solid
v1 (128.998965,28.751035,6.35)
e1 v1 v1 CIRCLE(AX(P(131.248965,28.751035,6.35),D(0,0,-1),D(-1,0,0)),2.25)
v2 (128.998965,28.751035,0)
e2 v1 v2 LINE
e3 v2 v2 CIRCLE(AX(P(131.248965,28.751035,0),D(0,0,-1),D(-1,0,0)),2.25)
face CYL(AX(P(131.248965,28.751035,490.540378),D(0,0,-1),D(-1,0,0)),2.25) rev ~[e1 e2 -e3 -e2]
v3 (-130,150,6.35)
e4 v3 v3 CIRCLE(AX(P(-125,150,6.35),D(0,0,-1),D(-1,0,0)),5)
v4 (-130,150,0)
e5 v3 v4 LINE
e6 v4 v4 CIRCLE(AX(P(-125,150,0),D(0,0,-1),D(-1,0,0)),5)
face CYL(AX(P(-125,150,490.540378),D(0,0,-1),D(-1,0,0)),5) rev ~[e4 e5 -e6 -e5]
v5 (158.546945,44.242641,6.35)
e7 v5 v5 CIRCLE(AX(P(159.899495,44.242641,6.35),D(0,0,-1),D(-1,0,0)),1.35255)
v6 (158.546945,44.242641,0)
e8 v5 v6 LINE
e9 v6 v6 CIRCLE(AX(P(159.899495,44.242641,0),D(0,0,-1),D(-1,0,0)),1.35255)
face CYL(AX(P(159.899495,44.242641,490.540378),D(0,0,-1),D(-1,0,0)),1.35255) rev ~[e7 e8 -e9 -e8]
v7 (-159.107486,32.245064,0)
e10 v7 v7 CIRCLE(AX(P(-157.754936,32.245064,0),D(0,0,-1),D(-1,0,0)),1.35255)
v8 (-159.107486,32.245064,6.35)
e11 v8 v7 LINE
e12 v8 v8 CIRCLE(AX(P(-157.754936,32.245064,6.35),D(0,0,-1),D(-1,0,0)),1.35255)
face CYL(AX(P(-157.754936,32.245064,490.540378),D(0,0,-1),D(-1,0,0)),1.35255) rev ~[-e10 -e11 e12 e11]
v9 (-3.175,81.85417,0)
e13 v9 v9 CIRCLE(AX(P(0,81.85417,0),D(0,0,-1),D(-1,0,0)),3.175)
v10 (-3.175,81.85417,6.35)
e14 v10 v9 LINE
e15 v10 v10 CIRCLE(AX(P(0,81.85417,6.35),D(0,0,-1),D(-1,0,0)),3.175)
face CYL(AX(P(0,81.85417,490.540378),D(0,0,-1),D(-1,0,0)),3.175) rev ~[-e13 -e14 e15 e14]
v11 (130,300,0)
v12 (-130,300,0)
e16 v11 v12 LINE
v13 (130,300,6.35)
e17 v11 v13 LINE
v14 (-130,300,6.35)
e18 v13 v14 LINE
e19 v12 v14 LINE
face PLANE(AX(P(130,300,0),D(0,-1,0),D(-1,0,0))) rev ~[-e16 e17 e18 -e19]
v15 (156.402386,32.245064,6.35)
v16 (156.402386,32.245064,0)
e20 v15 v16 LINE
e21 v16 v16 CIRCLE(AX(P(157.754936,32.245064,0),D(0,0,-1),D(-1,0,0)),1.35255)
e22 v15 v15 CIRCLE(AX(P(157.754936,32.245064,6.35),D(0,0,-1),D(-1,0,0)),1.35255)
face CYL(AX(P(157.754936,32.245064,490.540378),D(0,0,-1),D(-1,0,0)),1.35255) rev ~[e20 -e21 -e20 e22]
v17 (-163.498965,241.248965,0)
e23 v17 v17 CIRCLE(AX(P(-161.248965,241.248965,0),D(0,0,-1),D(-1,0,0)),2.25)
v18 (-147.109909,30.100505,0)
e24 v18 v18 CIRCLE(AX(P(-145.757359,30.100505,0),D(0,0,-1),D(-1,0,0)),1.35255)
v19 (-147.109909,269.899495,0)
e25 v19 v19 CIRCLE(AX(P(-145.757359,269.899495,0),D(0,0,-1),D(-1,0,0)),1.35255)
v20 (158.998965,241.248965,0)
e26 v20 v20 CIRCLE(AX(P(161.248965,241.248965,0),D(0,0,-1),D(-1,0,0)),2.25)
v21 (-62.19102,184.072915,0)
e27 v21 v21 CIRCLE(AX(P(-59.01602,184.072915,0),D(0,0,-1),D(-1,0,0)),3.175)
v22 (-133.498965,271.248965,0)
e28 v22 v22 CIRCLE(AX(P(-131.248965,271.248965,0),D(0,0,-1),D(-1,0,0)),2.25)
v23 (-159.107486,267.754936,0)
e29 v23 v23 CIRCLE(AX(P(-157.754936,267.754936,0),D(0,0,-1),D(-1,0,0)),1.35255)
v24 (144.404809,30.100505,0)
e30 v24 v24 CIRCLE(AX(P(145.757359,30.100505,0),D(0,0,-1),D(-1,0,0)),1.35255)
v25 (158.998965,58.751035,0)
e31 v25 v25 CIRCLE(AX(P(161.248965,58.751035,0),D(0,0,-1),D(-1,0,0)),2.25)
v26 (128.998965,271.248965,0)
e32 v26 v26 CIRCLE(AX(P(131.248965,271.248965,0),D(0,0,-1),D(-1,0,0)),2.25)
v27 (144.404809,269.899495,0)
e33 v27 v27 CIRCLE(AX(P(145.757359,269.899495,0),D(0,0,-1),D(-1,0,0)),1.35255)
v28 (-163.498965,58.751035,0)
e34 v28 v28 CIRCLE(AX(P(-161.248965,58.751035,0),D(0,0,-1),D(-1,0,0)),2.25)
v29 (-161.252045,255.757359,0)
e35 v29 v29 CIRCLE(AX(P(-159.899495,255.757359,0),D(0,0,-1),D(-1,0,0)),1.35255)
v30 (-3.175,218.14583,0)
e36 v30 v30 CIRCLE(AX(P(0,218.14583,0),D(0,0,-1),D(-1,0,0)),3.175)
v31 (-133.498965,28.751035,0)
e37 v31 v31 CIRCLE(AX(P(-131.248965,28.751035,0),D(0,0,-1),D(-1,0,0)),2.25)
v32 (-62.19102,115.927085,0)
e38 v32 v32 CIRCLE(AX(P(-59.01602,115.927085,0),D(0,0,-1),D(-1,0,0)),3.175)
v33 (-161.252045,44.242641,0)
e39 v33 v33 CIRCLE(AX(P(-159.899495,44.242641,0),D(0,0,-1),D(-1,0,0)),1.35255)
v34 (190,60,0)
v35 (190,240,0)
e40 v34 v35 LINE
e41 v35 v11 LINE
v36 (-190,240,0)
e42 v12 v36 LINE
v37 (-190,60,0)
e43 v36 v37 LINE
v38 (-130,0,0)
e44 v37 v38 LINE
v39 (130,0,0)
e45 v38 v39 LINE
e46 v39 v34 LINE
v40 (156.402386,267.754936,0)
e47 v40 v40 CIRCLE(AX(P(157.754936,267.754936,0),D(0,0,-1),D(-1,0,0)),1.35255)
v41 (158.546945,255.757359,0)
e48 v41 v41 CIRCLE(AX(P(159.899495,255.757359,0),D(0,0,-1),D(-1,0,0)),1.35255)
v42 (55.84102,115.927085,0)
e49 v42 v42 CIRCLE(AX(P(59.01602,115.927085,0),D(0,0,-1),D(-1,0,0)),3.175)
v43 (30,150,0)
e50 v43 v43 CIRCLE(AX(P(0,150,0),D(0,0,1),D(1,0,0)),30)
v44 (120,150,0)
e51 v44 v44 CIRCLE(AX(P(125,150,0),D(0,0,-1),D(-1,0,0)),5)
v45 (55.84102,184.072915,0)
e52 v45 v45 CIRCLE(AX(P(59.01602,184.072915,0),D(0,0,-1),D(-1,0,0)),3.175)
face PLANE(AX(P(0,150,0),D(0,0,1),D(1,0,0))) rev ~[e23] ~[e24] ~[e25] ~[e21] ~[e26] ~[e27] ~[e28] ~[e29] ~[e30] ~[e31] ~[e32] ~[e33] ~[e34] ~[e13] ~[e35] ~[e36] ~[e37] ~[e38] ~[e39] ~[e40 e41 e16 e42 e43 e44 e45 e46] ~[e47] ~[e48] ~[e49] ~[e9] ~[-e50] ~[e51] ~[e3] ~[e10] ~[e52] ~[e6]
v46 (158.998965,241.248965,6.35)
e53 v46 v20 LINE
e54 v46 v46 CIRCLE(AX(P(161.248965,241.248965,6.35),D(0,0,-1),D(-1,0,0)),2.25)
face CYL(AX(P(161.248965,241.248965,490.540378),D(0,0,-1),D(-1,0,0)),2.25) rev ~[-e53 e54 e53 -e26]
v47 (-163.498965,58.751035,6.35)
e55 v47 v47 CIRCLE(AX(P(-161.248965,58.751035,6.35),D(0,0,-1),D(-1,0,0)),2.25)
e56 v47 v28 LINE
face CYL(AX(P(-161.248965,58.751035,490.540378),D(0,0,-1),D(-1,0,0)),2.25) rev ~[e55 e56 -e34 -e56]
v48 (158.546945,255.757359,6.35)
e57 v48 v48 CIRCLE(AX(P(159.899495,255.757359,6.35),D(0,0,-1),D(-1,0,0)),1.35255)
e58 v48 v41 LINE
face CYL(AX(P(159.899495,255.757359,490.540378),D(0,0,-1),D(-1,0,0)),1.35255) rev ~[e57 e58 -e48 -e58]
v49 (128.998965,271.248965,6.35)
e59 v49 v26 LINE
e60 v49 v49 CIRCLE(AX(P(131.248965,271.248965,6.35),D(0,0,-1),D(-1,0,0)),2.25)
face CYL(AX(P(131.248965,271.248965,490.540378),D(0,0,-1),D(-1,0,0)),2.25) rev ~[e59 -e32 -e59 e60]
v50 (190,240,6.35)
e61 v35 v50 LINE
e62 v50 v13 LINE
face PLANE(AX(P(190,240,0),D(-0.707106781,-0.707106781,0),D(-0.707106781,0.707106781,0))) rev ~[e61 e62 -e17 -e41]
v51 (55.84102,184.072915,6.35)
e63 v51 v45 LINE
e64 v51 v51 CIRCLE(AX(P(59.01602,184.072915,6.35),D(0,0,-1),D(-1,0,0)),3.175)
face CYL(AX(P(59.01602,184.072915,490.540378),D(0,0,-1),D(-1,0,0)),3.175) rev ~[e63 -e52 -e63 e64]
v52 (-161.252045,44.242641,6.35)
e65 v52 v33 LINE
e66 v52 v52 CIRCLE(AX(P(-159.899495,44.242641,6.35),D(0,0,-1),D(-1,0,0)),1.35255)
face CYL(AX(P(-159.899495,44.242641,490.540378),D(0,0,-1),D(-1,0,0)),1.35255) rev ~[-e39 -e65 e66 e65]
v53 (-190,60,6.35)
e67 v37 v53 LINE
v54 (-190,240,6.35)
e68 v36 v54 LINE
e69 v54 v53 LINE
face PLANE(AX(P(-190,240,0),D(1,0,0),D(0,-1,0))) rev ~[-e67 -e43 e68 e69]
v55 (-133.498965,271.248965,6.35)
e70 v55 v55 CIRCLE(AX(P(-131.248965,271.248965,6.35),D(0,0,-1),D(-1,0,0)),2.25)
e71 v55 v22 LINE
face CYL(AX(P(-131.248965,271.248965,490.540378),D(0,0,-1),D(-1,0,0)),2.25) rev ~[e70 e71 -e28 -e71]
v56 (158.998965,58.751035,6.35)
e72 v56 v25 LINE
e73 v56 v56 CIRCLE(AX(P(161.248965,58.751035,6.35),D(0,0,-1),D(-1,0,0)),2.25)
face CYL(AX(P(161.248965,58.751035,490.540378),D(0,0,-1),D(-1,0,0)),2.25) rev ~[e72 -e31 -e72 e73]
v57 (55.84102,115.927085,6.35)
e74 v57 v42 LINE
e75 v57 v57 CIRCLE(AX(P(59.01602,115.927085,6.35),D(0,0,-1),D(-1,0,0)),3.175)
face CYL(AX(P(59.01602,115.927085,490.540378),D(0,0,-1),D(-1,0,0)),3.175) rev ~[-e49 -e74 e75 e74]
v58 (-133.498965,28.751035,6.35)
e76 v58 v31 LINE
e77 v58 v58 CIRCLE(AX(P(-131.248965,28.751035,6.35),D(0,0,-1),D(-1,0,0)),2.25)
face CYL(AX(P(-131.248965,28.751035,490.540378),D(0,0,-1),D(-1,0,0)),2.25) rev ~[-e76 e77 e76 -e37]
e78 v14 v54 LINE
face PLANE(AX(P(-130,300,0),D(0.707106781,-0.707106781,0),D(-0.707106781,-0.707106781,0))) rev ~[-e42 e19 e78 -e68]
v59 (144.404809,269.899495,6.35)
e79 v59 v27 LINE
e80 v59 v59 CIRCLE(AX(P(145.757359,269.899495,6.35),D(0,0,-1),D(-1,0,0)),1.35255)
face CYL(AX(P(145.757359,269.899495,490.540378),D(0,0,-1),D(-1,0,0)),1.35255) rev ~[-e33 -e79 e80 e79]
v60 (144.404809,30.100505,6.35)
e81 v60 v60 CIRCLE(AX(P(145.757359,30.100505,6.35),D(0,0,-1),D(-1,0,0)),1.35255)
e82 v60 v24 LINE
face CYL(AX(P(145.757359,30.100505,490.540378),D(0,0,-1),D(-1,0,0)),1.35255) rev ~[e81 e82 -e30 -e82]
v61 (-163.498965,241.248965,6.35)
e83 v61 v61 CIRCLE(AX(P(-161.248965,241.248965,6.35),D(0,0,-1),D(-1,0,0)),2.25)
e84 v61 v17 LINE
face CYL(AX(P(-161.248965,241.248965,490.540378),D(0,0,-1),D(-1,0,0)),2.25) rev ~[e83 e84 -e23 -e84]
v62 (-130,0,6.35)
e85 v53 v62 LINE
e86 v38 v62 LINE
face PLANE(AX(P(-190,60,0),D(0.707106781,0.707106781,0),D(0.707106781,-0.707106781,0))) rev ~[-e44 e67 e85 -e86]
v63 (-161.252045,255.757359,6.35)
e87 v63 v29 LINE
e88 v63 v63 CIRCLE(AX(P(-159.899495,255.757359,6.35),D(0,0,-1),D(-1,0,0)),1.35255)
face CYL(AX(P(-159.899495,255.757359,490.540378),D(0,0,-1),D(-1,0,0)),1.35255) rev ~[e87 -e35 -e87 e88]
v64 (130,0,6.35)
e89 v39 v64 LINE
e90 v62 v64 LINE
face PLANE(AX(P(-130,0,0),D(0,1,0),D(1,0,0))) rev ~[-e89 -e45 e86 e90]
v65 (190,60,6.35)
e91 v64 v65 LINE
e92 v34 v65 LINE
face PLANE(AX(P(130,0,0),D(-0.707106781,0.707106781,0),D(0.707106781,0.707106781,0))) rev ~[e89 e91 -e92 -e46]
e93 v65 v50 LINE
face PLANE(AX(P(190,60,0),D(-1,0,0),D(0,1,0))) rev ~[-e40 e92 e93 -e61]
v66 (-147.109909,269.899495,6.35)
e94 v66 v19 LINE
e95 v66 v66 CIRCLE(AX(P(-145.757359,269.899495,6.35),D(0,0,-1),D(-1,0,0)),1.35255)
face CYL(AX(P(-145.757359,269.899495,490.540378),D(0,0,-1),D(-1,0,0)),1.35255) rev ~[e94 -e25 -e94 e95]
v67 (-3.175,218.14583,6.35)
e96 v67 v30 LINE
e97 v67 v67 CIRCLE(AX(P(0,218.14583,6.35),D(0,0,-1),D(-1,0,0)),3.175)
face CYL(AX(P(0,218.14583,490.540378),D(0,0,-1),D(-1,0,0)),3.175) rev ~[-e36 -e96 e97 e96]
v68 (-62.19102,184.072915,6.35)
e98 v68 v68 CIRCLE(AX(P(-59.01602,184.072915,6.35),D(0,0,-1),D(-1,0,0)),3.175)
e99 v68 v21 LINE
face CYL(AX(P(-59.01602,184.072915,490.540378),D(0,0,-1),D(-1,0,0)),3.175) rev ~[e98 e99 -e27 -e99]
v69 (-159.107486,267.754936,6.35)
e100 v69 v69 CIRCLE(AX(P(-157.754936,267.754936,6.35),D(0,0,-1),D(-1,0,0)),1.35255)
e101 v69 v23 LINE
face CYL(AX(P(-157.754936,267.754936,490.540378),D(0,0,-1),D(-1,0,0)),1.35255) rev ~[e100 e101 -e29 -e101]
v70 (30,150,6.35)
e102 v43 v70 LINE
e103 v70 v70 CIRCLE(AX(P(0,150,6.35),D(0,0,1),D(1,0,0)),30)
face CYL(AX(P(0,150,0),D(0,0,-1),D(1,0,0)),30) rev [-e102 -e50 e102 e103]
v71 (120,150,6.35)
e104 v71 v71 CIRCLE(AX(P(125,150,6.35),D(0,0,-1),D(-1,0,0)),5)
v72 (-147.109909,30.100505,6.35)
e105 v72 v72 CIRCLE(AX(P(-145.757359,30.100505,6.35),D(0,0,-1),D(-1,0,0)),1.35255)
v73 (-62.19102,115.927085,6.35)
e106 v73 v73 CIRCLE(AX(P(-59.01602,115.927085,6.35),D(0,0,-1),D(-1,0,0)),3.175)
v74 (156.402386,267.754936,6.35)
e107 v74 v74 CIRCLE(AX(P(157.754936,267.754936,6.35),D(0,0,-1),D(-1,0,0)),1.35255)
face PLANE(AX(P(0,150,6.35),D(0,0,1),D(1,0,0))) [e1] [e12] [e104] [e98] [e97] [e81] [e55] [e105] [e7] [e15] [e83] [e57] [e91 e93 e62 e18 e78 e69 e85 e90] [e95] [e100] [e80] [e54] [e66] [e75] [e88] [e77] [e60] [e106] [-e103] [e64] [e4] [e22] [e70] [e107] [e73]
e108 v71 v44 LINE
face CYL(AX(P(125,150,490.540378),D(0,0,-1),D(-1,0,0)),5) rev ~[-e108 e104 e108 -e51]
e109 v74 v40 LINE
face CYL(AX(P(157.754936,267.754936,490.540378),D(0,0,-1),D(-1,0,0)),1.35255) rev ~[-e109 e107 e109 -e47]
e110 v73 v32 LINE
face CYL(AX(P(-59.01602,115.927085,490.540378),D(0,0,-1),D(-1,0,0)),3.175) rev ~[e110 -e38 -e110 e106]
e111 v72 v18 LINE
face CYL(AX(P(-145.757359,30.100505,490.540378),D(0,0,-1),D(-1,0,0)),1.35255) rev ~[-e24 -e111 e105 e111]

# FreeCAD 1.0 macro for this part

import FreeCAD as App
import Part
import Sketcher
from FreeCAD import Vector


def add_polygon(sketch, points):
    """Adds a closed chain of lines whose ends are joined by coincident constraints."""
    first, n = sketch.GeometryCount, len(points)
    for a, b in zip(points, points[1:] + points[:1]):
        sketch.addGeometry(Part.LineSegment(App.Vector(*a, 0), App.Vector(*b, 0)), False)
    for i in range(n):
        sketch.addConstraint(Sketcher.Constraint("Coincident", first + i, 2, first + (i + 1) % n, 1))

doc = App.newDocument("Part")
body = doc.addObject("PartDesign::Body", "Body")

sketch1 = doc.addObject("Sketcher::SketchObject", "Sketch")
body.addObject(sketch1)
sketch1.AttachmentSupport = (doc.XY_Plane, [""])
sketch1.MapMode = "FlatFace"
add_polygon(sketch1, [(-190, 60), (-130, 0), (130, 0), (190, 60), (190, 240), (130, 300), (-130, 300), (-190, 240)])
sketch1.addGeometry(Part.Circle(Vector(0, 150, 0), Vector(0, 0, 1), 30), False)
sketch1.addConstraint(Sketcher.Constraint("Horizontal", 1))
sketch1.addConstraint(Sketcher.Constraint("Vertical", 3))
sketch1.addConstraint(Sketcher.Constraint("Horizontal", 5))
sketch1.addConstraint(Sketcher.Constraint("Vertical", 7))
sketch1.addConstraint(Sketcher.Constraint("Symmetric", 0, 2, 1, 2, -1, 1))
sketch1.addConstraint(Sketcher.Constraint("Symmetric", 3, 2, 6, 2, -2))
sketch1.addConstraint(Sketcher.Constraint("PointOnObject", 8, 3, -2))
sketch1.addConstraint(Sketcher.Constraint("Perpendicular", 0, 2))
sketch1.addConstraint(Sketcher.Constraint("Perpendicular", 2, 4))
sketch1.addConstraint(Sketcher.Constraint("Perpendicular", 4, 6))
sketch1.addConstraint(Sketcher.Constraint("Horizontal", 2, 2, 7, 2))
sketch1.addConstraint(Sketcher.Constraint("Vertical", 1, 2, 4, 2))
sketch1.addConstraint(Sketcher.Constraint("Diameter", 8, 60.0))
sketch1.addConstraint(Sketcher.Constraint("DistanceX", 1, 1, 1, 2, 260.0))
sketch1.addConstraint(Sketcher.Constraint("DistanceY", 3, 1, 3, 2, 180.0))
sketch1.addConstraint(Sketcher.Constraint("DistanceY", -1, 1, 8, 3, 150.0))
sketch1.addConstraint(Sketcher.Constraint("DistanceX", -1, 1, 2, 2, 190.0))
pad1 = doc.addObject("PartDesign::Pad", "Pad")
body.addObject(pad1)
pad1.Profile = sketch1
pad1.Length = 6.35

sketch2 = doc.addObject("Sketcher::SketchObject", "Sketch001")
body.addObject(sketch2)
sketch2.AttachmentSupport = (doc.XY_Plane, [""])
sketch2.MapMode = "FlatFace"
sketch2.AttachmentOffset = App.Placement(Vector(0, 0, 6.35), App.Rotation())
sketch2.addGeometry(Part.Circle(Vector(-125, 150, 0), Vector(0, 0, 1), 5), False)
sketch2.addGeometry(Part.Circle(Vector(125, 150, 0), Vector(0, 0, 1), 5), False)
sketch2.addConstraint(Sketcher.Constraint("Equal", 0, 1))
sketch2.addConstraint(Sketcher.Constraint("Symmetric", 0, 3, 1, 3, -2))
sketch2.addConstraint(Sketcher.Constraint("Diameter", 0, 10.0))
sketch2.addConstraint(Sketcher.Constraint("DistanceX", 0, 3, -1, 1, 125.0))
sketch2.addConstraint(Sketcher.Constraint("DistanceY", -1, 1, 0, 3, 150.0))
doc.recompute()
hole = doc.addObject("PartDesign::Hole", "Hole")
body.addObject(hole)
hole.Profile = sketch2
hole.ThreadType = "None"
hole.Diameter = 10
hole.DepthType = "ThroughAll"

sketch3 = doc.addObject("Sketcher::SketchObject", "Sketch002")
body.addObject(sketch3)
sketch3.AttachmentSupport = (doc.XY_Plane, [""])
sketch3.MapMode = "FlatFace"
sketch3.AttachmentOffset = App.Placement(Vector(0, 0, 6.35), App.Rotation())
sketch3.addGeometry(Part.Circle(Vector(0, 218.1, 0), Vector(0, 0, 1), 3.2), False)
sketch3.addGeometry(Part.Circle(Vector(59, 184.1, 0), Vector(0, 0, 1), 3.2), False)
sketch3.addGeometry(Part.Circle(Vector(-59, 184.1, 0), Vector(0, 0, 1), 3.2), False)
sketch3.addGeometry(Part.Circle(Vector(-59, 115.9, 0), Vector(0, 0, 1), 3.2), False)
sketch3.addGeometry(Part.Circle(Vector(0, 81.9, 0), Vector(0, 0, 1), 3.2), False)
sketch3.addGeometry(Part.Circle(Vector(59, 115.9, 0), Vector(0, 0, 1), 3.2), False)
sketch3.addConstraint(Sketcher.Constraint("Equal", 0, 1))
sketch3.addConstraint(Sketcher.Constraint("Equal", 1, 2))
sketch3.addConstraint(Sketcher.Constraint("Equal", 2, 3))
sketch3.addConstraint(Sketcher.Constraint("Equal", 3, 4))
sketch3.addConstraint(Sketcher.Constraint("Equal", 4, 5))
sketch3.addConstraint(Sketcher.Constraint("Symmetric", 1, 3, 2, 3, -2))
sketch3.addConstraint(Sketcher.Constraint("Symmetric", 3, 3, 5, 3, -2))
sketch3.addConstraint(Sketcher.Constraint("PointOnObject", 0, 3, -2))
sketch3.addConstraint(Sketcher.Constraint("PointOnObject", 4, 3, -2))
sketch3.addConstraint(Sketcher.Constraint("Vertical", 2, 3, 3, 3))
sketch3.addConstraint(Sketcher.Constraint("Diameter", 0, 6.35))
sketch3.addConstraint(Sketcher.Constraint("DistanceY", -1, 1, 0, 3, 218.14583))
sketch3.addConstraint(Sketcher.Constraint("DistanceX", -1, 1, 1, 3, 59.01602))
sketch3.addConstraint(Sketcher.Constraint("DistanceY", -1, 1, 4, 3, 81.85417))
sketch3.addConstraint(Sketcher.Constraint("DistanceY", 3, 3, 2, 3, 68.14583))
sketch3.addConstraint(Sketcher.Constraint("DistanceY", -1, 1, 1, 3, 184.072915))
doc.recompute()
hole2 = doc.addObject("PartDesign::Hole", "Hole001")
body.addObject(hole2)
hole2.Profile = sketch3
hole2.ThreadType = "None"
hole2.Diameter = 6.35
hole2.DepthType = "ThroughAll"

sketch4 = doc.addObject("Sketcher::SketchObject", "Sketch003")
body.addObject(sketch4)
sketch4.AttachmentSupport = (doc.XY_Plane, [""])
sketch4.MapMode = "FlatFace"
sketch4.AttachmentOffset = App.Placement(Vector(0, 0, 6.35), App.Rotation())
sketch4.addGeometry(Part.Circle(Vector(-161.2, 241.2, 0), Vector(0, 0, 1), 2.2), False)
sketch4.addGeometry(Part.Circle(Vector(-131.2, 271.2, 0), Vector(0, 0, 1), 2.2), False)
sketch4.addGeometry(Part.Circle(Vector(-161.2, 58.8, 0), Vector(0, 0, 1), 2.2), False)
sketch4.addGeometry(Part.Circle(Vector(-131.2, 28.8, 0), Vector(0, 0, 1), 2.2), False)
sketch4.addGeometry(Part.Circle(Vector(131.2, 28.8, 0), Vector(0, 0, 1), 2.2), False)
sketch4.addGeometry(Part.Circle(Vector(161.2, 58.8, 0), Vector(0, 0, 1), 2.2), False)
sketch4.addGeometry(Part.Circle(Vector(161.2, 241.2, 0), Vector(0, 0, 1), 2.2), False)
sketch4.addGeometry(Part.Circle(Vector(131.2, 271.2, 0), Vector(0, 0, 1), 2.2), False)
sketch4.addConstraint(Sketcher.Constraint("Equal", 0, 1))
sketch4.addConstraint(Sketcher.Constraint("Equal", 1, 2))
sketch4.addConstraint(Sketcher.Constraint("Equal", 2, 3))
sketch4.addConstraint(Sketcher.Constraint("Equal", 3, 4))
sketch4.addConstraint(Sketcher.Constraint("Equal", 4, 5))
sketch4.addConstraint(Sketcher.Constraint("Equal", 5, 6))
sketch4.addConstraint(Sketcher.Constraint("Equal", 6, 7))
sketch4.addConstraint(Sketcher.Constraint("Symmetric", 3, 3, 4, 3, -2))
sketch4.addConstraint(Sketcher.Constraint("Symmetric", 2, 3, 5, 3, -2))
sketch4.addConstraint(Sketcher.Constraint("Symmetric", 0, 3, 6, 3, -2))
sketch4.addConstraint(Sketcher.Constraint("Symmetric", 1, 3, 7, 3, -2))
sketch4.addConstraint(Sketcher.Constraint("Vertical", 0, 3, 2, 3))
sketch4.addConstraint(Sketcher.Constraint("Vertical", 1, 3, 3, 3))
sketch4.addConstraint(Sketcher.Constraint("Diameter", 0, 4.5))
sketch4.addConstraint(Sketcher.Constraint("DistanceX", 0, 3, 1, 3, 30.0))
sketch4.addConstraint(Sketcher.Constraint("DistanceY", 0, 3, 1, 3, 30.0))
sketch4.addConstraint(Sketcher.Constraint("DistanceY", 3, 3, 2, 3, 30.0))
sketch4.addConstraint(Sketcher.Constraint("DistanceY", 2, 3, 0, 3, 182.49793))
sketch4.addConstraint(Sketcher.Constraint("DistanceX", 3, 3, 4, 3, 262.49793))
sketch4.addConstraint(Sketcher.Constraint("DistanceY", -1, 1, 0, 3, 241.248965))
doc.recompute()
hole3 = doc.addObject("PartDesign::Hole", "Hole002")
body.addObject(hole3)
hole3.Profile = sketch4
hole3.ThreadType = "None"
hole3.Diameter = 4.5
hole3.DepthType = "ThroughAll"

sketch5 = doc.addObject("Sketcher::SketchObject", "Sketch004")
body.addObject(sketch5)
sketch5.AttachmentSupport = (doc.XY_Plane, [""])
sketch5.MapMode = "FlatFace"
sketch5.AttachmentOffset = App.Placement(Vector(0, 0, 6.35), App.Rotation())
sketch5.addGeometry(Part.Circle(Vector(157.8, 267.8, 0), Vector(0, 0, 1), 1.4), False)
sketch5.addGeometry(Part.Circle(Vector(157.8, 32.2, 0), Vector(0, 0, 1), 1.4), False)
sketch5.addGeometry(Part.Circle(Vector(-157.8, 32.2, 0), Vector(0, 0, 1), 1.4), False)
sketch5.addGeometry(Part.Circle(Vector(-157.8, 267.8, 0), Vector(0, 0, 1), 1.4), False)
sketch5.addConstraint(Sketcher.Constraint("Equal", 0, 1))
sketch5.addConstraint(Sketcher.Constraint("Equal", 1, 2))
sketch5.addConstraint(Sketcher.Constraint("Equal", 2, 3))
sketch5.addConstraint(Sketcher.Constraint("Symmetric", 1, 3, 2, 3, -2))
sketch5.addConstraint(Sketcher.Constraint("Symmetric", 0, 3, 3, 3, -2))
sketch5.addConstraint(Sketcher.Constraint("Vertical", 0, 3, 1, 3))
sketch5.addConstraint(Sketcher.Constraint("Diameter", 0, 2.7051))
sketch5.addConstraint(Sketcher.Constraint("DistanceY", 1, 3, 0, 3, 235.509872))
sketch5.addConstraint(Sketcher.Constraint("DistanceX", 2, 3, 1, 3, 315.509872))
sketch5.addConstraint(Sketcher.Constraint("DistanceY", -1, 1, 0, 3, 267.754936))
doc.recompute()
hole4 = doc.addObject("PartDesign::Hole", "Hole003")
body.addObject(hole4)
hole4.Profile = sketch5
hole4.ThreadType = "None"
hole4.Diameter = 2.7051
hole4.DepthType = "ThroughAll"

sketch6 = doc.addObject("Sketcher::SketchObject", "Sketch005")
body.addObject(sketch6)
sketch6.AttachmentSupport = (doc.XY_Plane, [""])
sketch6.MapMode = "FlatFace"
sketch6.AttachmentOffset = App.Placement(Vector(0, 0, 6.35), App.Rotation())
sketch6.addGeometry(Part.Circle(Vector(-159.9, 255.8, 0), Vector(0, 0, 1), 1.4), False)
sketch6.addGeometry(Part.Circle(Vector(-145.8, 269.9, 0), Vector(0, 0, 1), 1.4), False)
sketch6.addGeometry(Part.Circle(Vector(-159.9, 44.2, 0), Vector(0, 0, 1), 1.4), False)
sketch6.addGeometry(Part.Circle(Vector(-145.8, 30.1, 0), Vector(0, 0, 1), 1.4), False)
sketch6.addGeometry(Part.Circle(Vector(145.8, 30.1, 0), Vector(0, 0, 1), 1.4), False)
sketch6.addGeometry(Part.Circle(Vector(159.9, 44.2, 0), Vector(0, 0, 1), 1.4), False)
sketch6.addGeometry(Part.Circle(Vector(145.8, 269.9, 0), Vector(0, 0, 1), 1.4), False)
sketch6.addGeometry(Part.Circle(Vector(159.9, 255.8, 0), Vector(0, 0, 1), 1.4), False)
sketch6.addConstraint(Sketcher.Constraint("Equal", 0, 1))
sketch6.addConstraint(Sketcher.Constraint("Equal", 1, 2))
sketch6.addConstraint(Sketcher.Constraint("Equal", 2, 3))
sketch6.addConstraint(Sketcher.Constraint("Equal", 3, 4))
sketch6.addConstraint(Sketcher.Constraint("Equal", 4, 5))
sketch6.addConstraint(Sketcher.Constraint("Equal", 5, 6))
sketch6.addConstraint(Sketcher.Constraint("Equal", 6, 7))
sketch6.addConstraint(Sketcher.Constraint("Symmetric", 3, 3, 4, 3, -2))
sketch6.addConstraint(Sketcher.Constraint("Symmetric", 2, 3, 5, 3, -2))
sketch6.addConstraint(Sketcher.Constraint("Symmetric", 1, 3, 6, 3, -2))
sketch6.addConstraint(Sketcher.Constraint("Symmetric", 0, 3, 7, 3, -2))
sketch6.addConstraint(Sketcher.Constraint("Vertical", 0, 3, 2, 3))
sketch6.addConstraint(Sketcher.Constraint("Vertical", 1, 3, 3, 3))
sketch6.addConstraint(Sketcher.Constraint("Diameter", 0, 2.7051))
sketch6.addConstraint(Sketcher.Constraint("DistanceY", -1, 1, 0, 3, 255.757359))
sketch6.addConstraint(Sketcher.Constraint("DistanceX", 1, 3, -1, 1, 145.757359))
sketch6.addConstraint(Sketcher.Constraint("DistanceY", -1, 1, 2, 3, 44.242641))
sketch6.addConstraint(Sketcher.Constraint("DistanceY", 3, 3, 1, 3, 239.79899))
sketch6.addConstraint(Sketcher.Constraint("DistanceX", 2, 3, 5, 3, 319.79899))
sketch6.addConstraint(Sketcher.Constraint("DistanceY", -1, 1, 1, 3, 269.899495))
doc.recompute()
hole5 = doc.addObject("PartDesign::Hole", "Hole004")
body.addObject(hole5)
hole5.Profile = sketch6
hole5.ThreadType = "None"
hole5.Diameter = 2.7051
hole5.DepthType = "ThroughAll"

doc.recompute()
